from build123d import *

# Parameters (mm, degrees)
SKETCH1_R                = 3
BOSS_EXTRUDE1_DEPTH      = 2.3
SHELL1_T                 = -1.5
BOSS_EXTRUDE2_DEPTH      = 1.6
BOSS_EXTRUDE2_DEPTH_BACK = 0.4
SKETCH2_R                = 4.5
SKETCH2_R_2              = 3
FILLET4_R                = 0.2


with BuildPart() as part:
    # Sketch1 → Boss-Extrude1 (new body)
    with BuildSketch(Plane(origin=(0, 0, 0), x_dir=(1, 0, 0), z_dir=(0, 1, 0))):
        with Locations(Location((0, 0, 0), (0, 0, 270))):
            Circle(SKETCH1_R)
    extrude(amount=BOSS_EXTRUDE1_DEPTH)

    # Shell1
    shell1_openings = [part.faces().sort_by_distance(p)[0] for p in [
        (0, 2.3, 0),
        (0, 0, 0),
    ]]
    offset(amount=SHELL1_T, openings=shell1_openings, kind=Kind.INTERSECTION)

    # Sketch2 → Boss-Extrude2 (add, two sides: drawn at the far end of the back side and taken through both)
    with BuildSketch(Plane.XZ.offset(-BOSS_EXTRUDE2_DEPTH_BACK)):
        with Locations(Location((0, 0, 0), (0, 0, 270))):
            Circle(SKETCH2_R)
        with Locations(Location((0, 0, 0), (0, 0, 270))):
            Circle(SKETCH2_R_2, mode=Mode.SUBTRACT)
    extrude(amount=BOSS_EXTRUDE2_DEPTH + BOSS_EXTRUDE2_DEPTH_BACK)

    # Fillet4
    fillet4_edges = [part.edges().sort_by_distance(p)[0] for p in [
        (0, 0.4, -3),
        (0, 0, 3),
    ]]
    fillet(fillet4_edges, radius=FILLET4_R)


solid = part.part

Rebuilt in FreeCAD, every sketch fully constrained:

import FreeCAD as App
import Part
import Sketcher

V = App.Vector
Q = App.Units.Quantity


def edges_at(feature, points):
    """Names of the edges that pass closest to the given points."""
    edges = feature.Shape.Edges
    near = lambda p: min(range(len(edges)), key=lambda i: edges[i].distToShape(Part.Vertex(*p))[0])
    return sorted({f"Edge{near(p) + 1}" for p in points})


def faces_at(feature, points):
    """Names of the faces that lie closest to the given points."""
    faces = feature.Shape.Faces
    near = lambda p: min(range(len(faces)), key=lambda i: faces[i].distToShape(Part.Vertex(*p))[0])
    return sorted({f"Face{near(p) + 1}" for p in points})

doc = App.newDocument("Part")
body = doc.addObject("PartDesign::Body", "Body")

sketch1 = doc.addObject("Sketcher::SketchObject", "Sketch")
body.addObject(sketch1)
sketch1.AttachmentSupport = (doc.XZ_Plane, [""])
sketch1.MapMode = "FlatFace"
sketch1.addGeometry(Part.Circle(V(0, 0, 0), V(0, 0, 1), 3), False)
sketch1.addConstraint(Sketcher.Constraint("Coincident", 0, 3, -1, 1))
sketch1.addConstraint(Sketcher.Constraint("Diameter", 0, Q("6 mm")))
pad1 = doc.addObject("PartDesign::Pad", "Pad")
body.addObject(pad1)
pad1.Profile = sketch1
pad1.Length = 2.3
pad1.Reversed = True
doc.recompute()

thickness = doc.addObject("PartDesign::Thickness", "Thickness")
body.addObject(thickness)
thickness.Base = (pad1, faces_at(pad1, [(0, 2.3, 0), (0, 0, 0)]))
thickness.Value = 1.5
thickness.Reversed = True
thickness.Join = "Intersection"

sketch2 = doc.addObject("Sketcher::SketchObject", "Sketch001")
body.addObject(sketch2)
sketch2.AttachmentSupport = (doc.XZ_Plane, [""])
sketch2.MapMode = "FlatFace"
sketch2.addGeometry(Part.Circle(V(0, 0, 0), V(0, 0, 1), 4.5), False)
sketch2.addGeometry(Part.Circle(V(0, 0, 0), V(0, 0, 1), 3), False)
sketch2.addConstraint(Sketcher.Constraint("Coincident", 0, 3, -1, 1))
sketch2.addConstraint(Sketcher.Constraint("Coincident", 1, 3, -1, 1))
sketch2.addConstraint(Sketcher.Constraint("Diameter", 0, Q("9 mm")))
sketch2.addConstraint(Sketcher.Constraint("Diameter", 1, Q("6 mm")))
pad2 = doc.addObject("PartDesign::Pad", "Pad001")
body.addObject(pad2)
pad2.Profile = sketch2
pad2.Type = "TwoLengths"
pad2.Length = 1.6
pad2.Length2 = 0.4
doc.recompute()

fillet = doc.addObject("PartDesign::Fillet", "Fillet")
body.addObject(fillet)
fillet.Base = (pad2, edges_at(pad2, [(0, 0.4, -3), (0, 0, 3)]))
fillet.Radius = 0.2

doc.recompute()
